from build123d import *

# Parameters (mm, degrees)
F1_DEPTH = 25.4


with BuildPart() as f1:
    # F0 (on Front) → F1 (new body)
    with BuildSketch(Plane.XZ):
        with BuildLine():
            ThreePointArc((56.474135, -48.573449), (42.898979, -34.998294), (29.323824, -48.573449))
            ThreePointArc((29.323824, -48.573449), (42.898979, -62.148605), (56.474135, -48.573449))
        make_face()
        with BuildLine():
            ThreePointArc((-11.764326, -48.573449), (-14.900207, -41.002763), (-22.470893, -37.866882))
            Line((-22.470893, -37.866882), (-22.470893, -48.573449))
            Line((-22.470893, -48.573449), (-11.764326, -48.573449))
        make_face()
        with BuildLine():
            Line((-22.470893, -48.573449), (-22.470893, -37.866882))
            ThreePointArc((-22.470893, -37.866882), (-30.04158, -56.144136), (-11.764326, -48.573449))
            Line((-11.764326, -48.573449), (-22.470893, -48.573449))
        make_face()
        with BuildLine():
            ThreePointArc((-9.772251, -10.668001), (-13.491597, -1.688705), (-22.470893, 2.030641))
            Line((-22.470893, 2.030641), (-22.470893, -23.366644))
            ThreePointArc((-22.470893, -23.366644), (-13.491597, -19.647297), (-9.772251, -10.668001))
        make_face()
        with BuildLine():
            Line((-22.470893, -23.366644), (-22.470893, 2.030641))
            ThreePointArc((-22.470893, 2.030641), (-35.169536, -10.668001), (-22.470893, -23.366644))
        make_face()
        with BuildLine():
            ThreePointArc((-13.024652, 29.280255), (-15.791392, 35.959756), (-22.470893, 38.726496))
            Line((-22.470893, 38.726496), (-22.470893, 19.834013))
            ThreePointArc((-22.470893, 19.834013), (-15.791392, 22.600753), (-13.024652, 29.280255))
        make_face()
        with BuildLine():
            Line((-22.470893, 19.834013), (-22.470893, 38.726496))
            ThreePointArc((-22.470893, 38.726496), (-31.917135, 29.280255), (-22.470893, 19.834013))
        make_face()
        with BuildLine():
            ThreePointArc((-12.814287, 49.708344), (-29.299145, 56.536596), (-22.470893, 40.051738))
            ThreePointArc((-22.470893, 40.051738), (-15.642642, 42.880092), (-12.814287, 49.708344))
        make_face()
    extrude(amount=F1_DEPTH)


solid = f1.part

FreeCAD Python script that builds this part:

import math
import FreeCAD as App
import Part
import Sketcher

V = App.Vector
Q = App.Units.Quantity

doc = App.newDocument("Part")
body = doc.addObject("PartDesign::Body", "Body")
body.AllowCompound = True

sketch1 = doc.addObject("Sketcher::SketchObject", "Sketch")
body.addObject(sketch1)
sketch1.AttachmentSupport = (doc.XZ_Plane, [""])
sketch1.MapMode = "FlatFace"
sketch1.addGeometry([
    Part.Circle(V(42.89898, -48.57345, 0), V(0, 0, 1), 13.575155),
    Part.ArcOfCircle(Part.Circle(V(-22.470893, -48.573449, 0), V(0, 0, 1), 10.706567), math.radians(0.000002), math.radians(89.999998)),
    Part.ArcOfCircle(Part.Circle(V(-22.470894, -48.57345, 0), V(0, 0, 1), 10.706568), math.radians(89.999997), math.radians(360.000003)),
    Part.ArcOfCircle(Part.Circle(V(-22.470893, -10.668001, 0), V(0, 0, 1), 12.698642), math.radians(-0.000002), math.radians(90.000002)),
    Part.ArcOfCircle(Part.Circle(V(-22.470893, -10.668002, 0), V(0, 0, 1), 12.698643), math.radians(89.999998), math.radians(270.000002)),
    Part.ArcOfCircle(Part.Circle(V(-22.470894, -10.668001, 0), V(0, 0, 1), 12.698643), math.radians(-89.999994), math.radians(-0.000001)),
    Part.ArcOfCircle(Part.Circle(V(-22.470893, 29.280255, 0), V(0, 0, 1), 9.446241), math.radians(0.000001), math.radians(89.999999)),
    Part.ArcOfCircle(Part.Circle(V(-22.470893, 29.280255, 0), V(0, 0, 1), 9.446241), math.radians(89.999997), math.radians(270.000003)),
    Part.ArcOfCircle(Part.Circle(V(-22.470893, 29.280254, 0), V(0, 0, 1), 9.446241), math.radians(-89.999999), math.radians(0.000005)),
    Part.ArcOfCircle(Part.Circle(V(-22.470893, 49.708344, 0), V(0, 0, 1), 9.656606), math.radians(-0.000001), math.radians(270.000001)),
    Part.ArcOfCircle(Part.Circle(V(-22.470893, 49.708344, 0), V(0, 0, 1), 9.656606), math.radians(-89.999998), math.radians(-0.000002)),
], False)
sketch1.addConstraint([
    Sketcher.Constraint("Tangent", 1, 1, 2, 2),
    Sketcher.Constraint("Coincident", 2, 1, 1, 2),
    Sketcher.Constraint("Tangent", 3, 2, 4, 1),
    Sketcher.Constraint("Tangent", 4, 2, 5, 1),
    Sketcher.Constraint("Tangent", 5, 2, 3, 1),
    Sketcher.Constraint("Tangent", 6, 2, 7, 1),
    Sketcher.Constraint("Tangent", 7, 2, 8, 1),
    Sketcher.Constraint("Tangent", 8, 2, 6, 1),
    Sketcher.Constraint("Tangent", 9, 1, 10, 2),
    Sketcher.Constraint("Coincident", 10, 1, 9, 2),
    Sketcher.Constraint("Horizontal", 0, 3, 1, 3),
    Sketcher.Constraint("Horizontal", 2, 3, 1, 1),
    Sketcher.Constraint("Horizontal", 4, 3, 5, 2),
    Sketcher.Constraint("Horizontal", 7, 3, 8, 2),
    Sketcher.Constraint("Horizontal", 10, 3, 9, 1),
    Sketcher.Constraint("Vertical", 2, 3, 3, 3),
    Sketcher.Constraint("Vertical", 5, 3, 6, 3),
    Sketcher.Constraint("Vertical", 8, 3, 9, 3),
    Sketcher.Constraint("Vertical", 10, 3, 2, 1),
    Sketcher.Constraint("Vertical", 2, 1, 3, 2),
    Sketcher.Constraint("Vertical", 3, 2, 4, 2),
    Sketcher.Constraint("Vertical", 4, 2, 6, 2),
    Sketcher.Constraint("Vertical", 6, 2, 7, 2),
    Sketcher.Constraint("Vertical", 7, 2, 10, 1),
    Sketcher.Constraint("DistanceY", 3, 3, -1, 1, Q("0.42 in")),
    Sketcher.Constraint("Diameter", 0, 27.150311),
    Sketcher.Constraint("Radius", 3, 12.698642),
    Sketcher.Constraint("Radius", 6, 9.446241),
    Sketcher.Constraint("Radius", 1, 10.706567),
    Sketcher.Constraint("Radius", 9, 9.656606),
    Sketcher.Constraint("DistanceX", -1, 1, 0, 3, 42.89898),
    Sketcher.Constraint("DistanceY", 0, 3, -1, 1, 48.57345),
    Sketcher.Constraint("DistanceX", 5, 2, -1, 1, 9.772251),
    Sketcher.Constraint("DistanceY", -1, 1, 10, 1, 40.051738),
    Sketcher.Constraint("DistanceY", 6, 3, 9, 3, 20.428089),
])
pad1 = doc.addObject("PartDesign::Pad", "Pad")
body.addObject(pad1)
pad1.Profile = sketch1
pad1.Length = Q("1 in")

doc.recompute()
